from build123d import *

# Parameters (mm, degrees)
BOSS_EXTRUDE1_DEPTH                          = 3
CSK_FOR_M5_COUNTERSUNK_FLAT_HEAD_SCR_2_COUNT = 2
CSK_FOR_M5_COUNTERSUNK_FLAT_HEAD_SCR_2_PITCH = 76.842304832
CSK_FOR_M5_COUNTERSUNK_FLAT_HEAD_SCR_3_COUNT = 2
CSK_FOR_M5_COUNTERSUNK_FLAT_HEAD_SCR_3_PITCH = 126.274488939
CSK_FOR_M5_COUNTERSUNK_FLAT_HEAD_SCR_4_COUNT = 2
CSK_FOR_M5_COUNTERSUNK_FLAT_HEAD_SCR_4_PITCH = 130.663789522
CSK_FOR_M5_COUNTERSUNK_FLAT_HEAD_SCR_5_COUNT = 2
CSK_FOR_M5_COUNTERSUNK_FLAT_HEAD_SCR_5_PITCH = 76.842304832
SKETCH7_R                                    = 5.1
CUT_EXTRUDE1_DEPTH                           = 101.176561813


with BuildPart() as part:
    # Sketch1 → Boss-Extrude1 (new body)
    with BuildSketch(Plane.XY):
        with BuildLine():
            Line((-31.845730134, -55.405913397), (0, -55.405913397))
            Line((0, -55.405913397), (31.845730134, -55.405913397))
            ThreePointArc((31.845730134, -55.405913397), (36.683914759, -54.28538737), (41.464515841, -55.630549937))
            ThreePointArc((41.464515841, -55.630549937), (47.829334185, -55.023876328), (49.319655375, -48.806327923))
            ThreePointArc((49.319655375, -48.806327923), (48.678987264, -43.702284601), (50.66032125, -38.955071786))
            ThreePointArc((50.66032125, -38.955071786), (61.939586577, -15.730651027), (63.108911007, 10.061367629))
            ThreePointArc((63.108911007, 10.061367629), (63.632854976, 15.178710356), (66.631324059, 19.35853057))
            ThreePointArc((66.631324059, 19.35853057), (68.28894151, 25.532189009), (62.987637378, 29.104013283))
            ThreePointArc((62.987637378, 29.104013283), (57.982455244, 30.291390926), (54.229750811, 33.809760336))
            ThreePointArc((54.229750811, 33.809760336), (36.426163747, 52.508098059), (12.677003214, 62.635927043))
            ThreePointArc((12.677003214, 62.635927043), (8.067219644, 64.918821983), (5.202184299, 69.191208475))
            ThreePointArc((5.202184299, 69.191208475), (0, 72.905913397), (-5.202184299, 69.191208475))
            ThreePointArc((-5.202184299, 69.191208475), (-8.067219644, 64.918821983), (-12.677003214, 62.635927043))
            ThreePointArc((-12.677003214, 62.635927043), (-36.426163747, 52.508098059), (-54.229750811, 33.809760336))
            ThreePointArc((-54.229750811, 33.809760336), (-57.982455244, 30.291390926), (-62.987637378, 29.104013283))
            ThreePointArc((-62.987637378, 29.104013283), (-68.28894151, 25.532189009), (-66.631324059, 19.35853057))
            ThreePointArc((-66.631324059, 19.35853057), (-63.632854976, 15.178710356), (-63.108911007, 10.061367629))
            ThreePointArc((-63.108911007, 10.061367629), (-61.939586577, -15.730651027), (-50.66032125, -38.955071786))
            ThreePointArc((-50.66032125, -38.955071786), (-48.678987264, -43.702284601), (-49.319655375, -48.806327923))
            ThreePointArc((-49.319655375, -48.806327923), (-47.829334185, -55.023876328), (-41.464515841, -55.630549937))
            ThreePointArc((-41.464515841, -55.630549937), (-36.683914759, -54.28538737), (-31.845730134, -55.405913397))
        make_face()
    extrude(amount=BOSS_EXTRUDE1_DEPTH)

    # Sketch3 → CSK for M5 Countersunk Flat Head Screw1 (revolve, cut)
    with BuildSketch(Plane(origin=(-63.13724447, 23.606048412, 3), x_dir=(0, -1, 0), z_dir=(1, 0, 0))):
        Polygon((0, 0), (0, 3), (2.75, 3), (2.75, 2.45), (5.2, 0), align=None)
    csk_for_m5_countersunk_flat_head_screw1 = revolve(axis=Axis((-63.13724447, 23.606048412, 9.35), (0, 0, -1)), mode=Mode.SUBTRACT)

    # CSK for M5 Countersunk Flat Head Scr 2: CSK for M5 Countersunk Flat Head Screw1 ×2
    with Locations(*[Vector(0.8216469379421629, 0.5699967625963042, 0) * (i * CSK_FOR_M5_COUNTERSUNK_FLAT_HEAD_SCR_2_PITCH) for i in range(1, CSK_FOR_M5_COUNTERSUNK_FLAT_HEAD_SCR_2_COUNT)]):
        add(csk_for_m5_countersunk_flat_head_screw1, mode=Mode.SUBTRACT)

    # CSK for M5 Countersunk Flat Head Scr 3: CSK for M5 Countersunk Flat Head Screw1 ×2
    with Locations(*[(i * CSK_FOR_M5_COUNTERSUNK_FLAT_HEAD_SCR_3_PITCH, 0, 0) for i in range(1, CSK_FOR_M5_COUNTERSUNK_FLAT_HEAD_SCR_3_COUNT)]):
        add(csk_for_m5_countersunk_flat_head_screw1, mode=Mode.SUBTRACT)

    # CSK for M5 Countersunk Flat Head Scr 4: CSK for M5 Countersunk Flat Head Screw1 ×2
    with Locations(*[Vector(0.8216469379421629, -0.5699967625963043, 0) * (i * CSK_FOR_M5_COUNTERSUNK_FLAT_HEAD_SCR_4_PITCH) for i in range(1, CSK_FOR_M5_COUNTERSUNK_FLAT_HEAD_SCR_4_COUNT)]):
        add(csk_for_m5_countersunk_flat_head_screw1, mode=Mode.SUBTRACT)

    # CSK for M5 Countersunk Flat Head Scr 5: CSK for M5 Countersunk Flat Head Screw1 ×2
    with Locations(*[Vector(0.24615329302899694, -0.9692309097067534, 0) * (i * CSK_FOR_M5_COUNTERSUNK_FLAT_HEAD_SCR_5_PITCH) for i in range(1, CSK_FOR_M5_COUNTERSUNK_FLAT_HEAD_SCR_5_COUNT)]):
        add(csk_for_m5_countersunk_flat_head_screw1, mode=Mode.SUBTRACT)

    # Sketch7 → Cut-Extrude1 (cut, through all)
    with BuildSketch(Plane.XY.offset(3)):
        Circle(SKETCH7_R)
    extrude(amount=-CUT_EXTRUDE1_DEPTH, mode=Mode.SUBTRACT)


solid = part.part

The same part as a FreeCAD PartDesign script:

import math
import FreeCAD as App
import Part
import Sketcher
from FreeCAD import Vector
Q = App.Units.Quantity


def add_polygon(sketch, points):
    """Adds a closed chain of lines whose ends are joined by coincident constraints."""
    first, n = sketch.GeometryCount, len(points)
    for a, b in zip(points, points[1:] + points[:1]):
        sketch.addGeometry(Part.LineSegment(App.Vector(*a, 0), App.Vector(*b, 0)), False)
    for i in range(n):
        sketch.addConstraint(Sketcher.Constraint("Coincident", first + i, 2, first + (i + 1) % n, 1))

doc = App.newDocument("Part")
params = doc.addObject("Spreadsheet::Sheet", "Params")
for row, (alias, value) in enumerate([
    ("sketch1_radius", "10 mm"),
    ("sketch1_radius2", "5.5 mm"),
    ("pad1_length", "3 mm"),
    ("sketch2_height", "3 mm"),
    ("sketch2_width", "5.2 mm"),
    ("sketch2_width2", "2.75 mm"),
    ("groove_angle", "360 deg"),
    ("linearpattern_pitch", "76.842305 mm"),
    ("linearpattern2_pitch", "126.274489 mm"),
    ("linearpattern3_pitch", "130.66379 mm"),
    ("linearpattern4_pitch", "76.842305 mm"),
    ("sketch3_diameter", "10.2 mm"),
], start=1):
    params.set(f"A{row}", alias)
    params.set(f"B{row}", "=" + value)
    params.setAlias(f"B{row}", alias)

body = doc.addObject("PartDesign::Body", "Body")

# Sketch on XY plane
sketch1 = body.newObject("Sketcher::SketchObject", "Sketch")
sketch1.AttachmentSupport = (doc.getObject("XY_Plane"), [""])
sketch1.MapMode = "FlatFace"
sketch1.addGeometry([
    Part.LineSegment(Vector(-32, -55, 0), Vector(32, -55, 0)),  # 0
    Part.ArcOfCircle(Part.Circle(Vector(36, -64, 0), Vector(0, 0, 1), 10), math.radians(60), math.radians(117)),  # 1
    Part.ArcOfCircle(Part.Circle(Vector(44, -51, 0), Vector(0, 0, 1), 5), math.radians(-120), math.radians(22)),  # 2
    Part.ArcOfCircle(Part.Circle(Vector(59, -45, 0), Vector(0, 0, 1), 10), math.radians(142), math.radians(202)),  # 3
    Part.ArcOfCircle(Part.Circle(Vector(0, 0, 0), Vector(0, 0, 1), 64), math.radians(-38), math.radians(9)),  # 4
    Part.ArcOfCircle(Part.Circle(Vector(73, 12, 0), Vector(0, 0, 1), 10), math.radians(129), math.radians(189)),  # 5
    Part.ArcOfCircle(Part.Circle(Vector(63, 24, 0), Vector(0, 0, 1), 6), math.radians(-51), math.radians(92)),  # 6
    Part.ArcOfCircle(Part.Circle(Vector(63, 39, 0), Vector(0, 0, 1), 10), math.radians(-148), math.radians(-88)),  # 7
    Part.ArcOfCircle(Part.Circle(Vector(0, 0, 0), Vector(0, 0, 1), 64), math.radians(32), math.radians(79)),  # 8
    Part.ArcOfCircle(Part.Circle(Vector(15, 72, 0), Vector(0, 0, 1), 10), math.radians(-161), math.radians(-101)),  # 9
    Part.ArcOfCircle(Part.Circle(Vector(0, 67, 0), Vector(0, 0, 1), 6), math.radians(19), math.radians(161)),  # 10
    Part.ArcOfCircle(Part.Circle(Vector(-15, 72, 0), Vector(0, 0, 1), 10), math.radians(-79), math.radians(-19)),  # 11
    Part.ArcOfCircle(Part.Circle(Vector(0, 0, 0), Vector(0, 0, 1), 64), math.radians(101), math.radians(148)),  # 12
    Part.ArcOfCircle(Part.Circle(Vector(-63, 39, 0), Vector(0, 0, 1), 10), math.radians(-92), math.radians(-32)),  # 13
    Part.ArcOfCircle(Part.Circle(Vector(-63, 24, 0), Vector(0, 0, 1), 6), math.radians(88), math.radians(231)),  # 14
    Part.ArcOfCircle(Part.Circle(Vector(-73, 12, 0), Vector(0, 0, 1), 10), math.radians(-9), math.radians(51)),  # 15
    Part.ArcOfCircle(Part.Circle(Vector(0, 0, 0), Vector(0, 0, 1), 64), math.radians(171), math.radians(218)),  # 16
    Part.ArcOfCircle(Part.Circle(Vector(-59, -45, 0), Vector(0, 0, 1), 10), math.radians(-22), math.radians(38)),  # 17
    Part.ArcOfCircle(Part.Circle(Vector(-44, -51, 0), Vector(0, 0, 1), 5), math.radians(158), math.radians(300)),  # 18
    Part.ArcOfCircle(Part.Circle(Vector(-36, -64, 0), Vector(0, 0, 1), 10), math.radians(63), math.radians(120)),  # 19
], False)
sketch1.addConstraint([
    Sketcher.Constraint("Coincident", 0, 2, 1, 2),
    Sketcher.Constraint("Tangent", 1, 1, 2, 1),
    Sketcher.Constraint("Tangent", 2, 2, 3, 2),
    Sketcher.Constraint("Tangent", 3, 1, 4, 1),
    Sketcher.Constraint("Tangent", 4, 2, 5, 2),
    Sketcher.Constraint("Tangent", 5, 1, 6, 1),
    Sketcher.Constraint("Tangent", 6, 2, 7, 2),
    Sketcher.Constraint("Tangent", 7, 1, 8, 1),
    Sketcher.Constraint("Tangent", 8, 2, 9, 2),
    Sketcher.Constraint("Tangent", 9, 1, 10, 1),
    Sketcher.Constraint("Tangent", 10, 2, 11, 2),
    Sketcher.Constraint("Tangent", 11, 1, 12, 1),
    Sketcher.Constraint("Tangent", 12, 2, 13, 2),
    Sketcher.Constraint("Tangent", 13, 1, 14, 1),
    Sketcher.Constraint("Tangent", 14, 2, 15, 2),
    Sketcher.Constraint("Tangent", 15, 1, 16, 1),
    Sketcher.Constraint("Tangent", 16, 2, 17, 2),
    Sketcher.Constraint("Tangent", 17, 1, 18, 1),
    Sketcher.Constraint("Tangent", 18, 2, 19, 2),
    Sketcher.Constraint("Coincident", 19, 1, 0, 1),
    Sketcher.Constraint("Horizontal", 0),
    Sketcher.Constraint("Coincident", 4, 3, -1, 1),
    Sketcher.Constraint("Coincident", 8, 3, -1, 1),
    Sketcher.Constraint("Coincident", 12, 3, -1, 1),
    Sketcher.Constraint("Coincident", 16, 3, -1, 1),
    Sketcher.Constraint("Equal", 1, 3),
    Sketcher.Constraint("Equal", 3, 5),
    Sketcher.Constraint("Equal", 2, 6),
    Sketcher.Constraint("Equal", 5, 7),
    Sketcher.Constraint("Equal", 4, 8),
    Sketcher.Constraint("Equal", 7, 9),
    Sketcher.Constraint("Equal", 6, 10),
    Sketcher.Constraint("Equal", 9, 11),
    Sketcher.Constraint("Equal", 8, 12),
    Sketcher.Constraint("Equal", 11, 13),
    Sketcher.Constraint("Equal", 10, 14),
    Sketcher.Constraint("Equal", 13, 15),
    Sketcher.Constraint("Equal", 12, 16),
    Sketcher.Constraint("Equal", 15, 17),
    Sketcher.Constraint("Equal", 14, 18),
    Sketcher.Constraint("Equal", 17, 19),
    Sketcher.Constraint("Symmetric", 6, 3, 14, 3, -2),
    Sketcher.Constraint("Symmetric", 2, 3, 18, 3, -2),
    Sketcher.Constraint("PointOnObject", 10, 3, -2),
    Sketcher.Constraint("Horizontal", 1, 3, 19, 3),
    Sketcher.Constraint("Radius", 1, 10.0),
    Sketcher.Constraint("Radius", 2, 5.5),
    Sketcher.Constraint("Radius", 4, 63.905913),
    Sketcher.Constraint("DistanceX", 0, 1, 0, 2, 63.69146),
    Sketcher.Constraint("DistanceX", -1, 1, 9, 3, 14.660701),
    Sketcher.Constraint("DistanceY", 1, 3, 3, 3, 19.231898),
    Sketcher.Constraint("DistanceY", 2, 3, 7, 3, 89.972202),
    Sketcher.Constraint("DistanceY", 7, 3, 10, 3, 28.3056),
    Sketcher.Constraint("DistanceX", 7, 3, 5, 1, 3.9157),
    Sketcher.Constraint("DistanceX", -1, 1, 1, 3, 36.450439),
])
sketch1.setExpression("Constraints[45]", "Params.sketch1_radius")
sketch1.setExpression("Constraints[46]", "Params.sketch1_radius2")
pad1 = body.newObject("PartDesign::Pad", "Pad")
pad1.Profile = sketch1
pad1.setExpression("Length", "Params.pad1_length")

# Sketch on YZ plane
sketch2 = body.newObject("Sketcher::SketchObject", "Sketch001")
sketch2.AttachmentSupport = (doc.getObject("YZ_Plane"), [""])
sketch2.MapMode = "FlatFace"
sketch2.AttachmentOffset = App.Placement(Vector(0, 0, -63.137244), App.Rotation())
add_polygon(sketch2, [(23.6, 0), (23.6, 3), (18.4, 3), (20.9, 0.6), (20.9, 0)])  # lines 0-4
sketch2.addGeometry(Part.LineSegment(Vector(23.6, 3, 0), Vector(23.6, 0, 0)), True)  # axis
sketch2.addConstraint([
    Sketcher.Constraint("Vertical", 0),
    Sketcher.Constraint("Horizontal", 1),
    Sketcher.Constraint("Vertical", 3),
    Sketcher.Constraint("Horizontal", 4),
    Sketcher.Constraint("Vertical", 5),
    Sketcher.Constraint("Coincident", 5, 1, 0, 2),
    Sketcher.Constraint("PointOnObject", 3, 2, -1),
    Sketcher.Constraint("PointOnObject", 5, 2, -1),
    Sketcher.Constraint("DistanceY", 0, 1, 0, 2, 3.0),
    Sketcher.Constraint("Angle", 2, Q("-45 deg")),
    Sketcher.Constraint("DistanceX", 1, 2, 1, 1, 5.2),
    Sketcher.Constraint("DistanceX", 4, 1, 4, 2, 2.75),
    Sketcher.Constraint("DistanceX", -1, 1, 0, 2, 23.606048),
])
sketch2.setExpression("Constraints[13]", "Params.sketch2_height")
sketch2.setExpression("Constraints[15]", "Params.sketch2_width")
sketch2.setExpression("Constraints[16]", "Params.sketch2_width2")
groove = body.newObject("PartDesign::Groove", "Groove")
groove.Profile = sketch2
groove.ReferenceAxis = (sketch2, ["Axis0"])
groove.setExpression("Angle", "Params.groove_angle")
doc.recompute()

datumline = body.newObject("PartDesign::Line", "DatumLine")
datumline.Placement = App.Placement(Vector(0, 0, 0), App.Rotation(Vector(0, 0, 1), Vector(0.821646938, 0.569996763, 0)))
linearpattern = body.newObject("PartDesign::LinearPattern", "LinearPattern")
linearpattern.Originals = [groove]
linearpattern.Direction = (datumline, [""])
linearpattern.Mode = "offset"
linearpattern.setExpression("Offset", "Params.linearpattern_pitch")
linearpattern.Occurrences = 2
body.Tip = linearpattern
doc.recompute()

linearpattern2 = body.newObject("PartDesign::LinearPattern", "LinearPattern001")
linearpattern2.Originals = [groove]
linearpattern2.Direction = (doc.getObject("X_Axis"), [""])
linearpattern2.Mode = "offset"
linearpattern2.setExpression("Offset", "Params.linearpattern2_pitch")
linearpattern2.Occurrences = 2
body.Tip = linearpattern2
doc.recompute()

datumline2 = body.newObject("PartDesign::Line", "DatumLine001")
datumline2.Placement = App.Placement(Vector(0, 0, 0), App.Rotation(Vector(0, 0, 1), Vector(0.821646938, -0.569996763, 0)))
linearpattern3 = body.newObject("PartDesign::LinearPattern", "LinearPattern002")
linearpattern3.Originals = [groove]
linearpattern3.Direction = (datumline2, [""])
linearpattern3.Mode = "offset"
linearpattern3.setExpression("Offset", "Params.linearpattern3_pitch")
linearpattern3.Occurrences = 2
body.Tip = linearpattern3
doc.recompute()

datumline3 = body.newObject("PartDesign::Line", "DatumLine002")
datumline3.Placement = App.Placement(Vector(0, 0, 0), App.Rotation(Vector(0, 0, 1), Vector(0.246153293, -0.96923091, 0)))
linearpattern4 = body.newObject("PartDesign::LinearPattern", "LinearPattern003")
linearpattern4.Originals = [groove]
linearpattern4.Direction = (datumline3, [""])
linearpattern4.Mode = "offset"
linearpattern4.setExpression("Offset", "Params.linearpattern4_pitch")
linearpattern4.Occurrences = 2
body.Tip = linearpattern4

# Sketch on XY plane
sketch3 = body.newObject("Sketcher::SketchObject", "Sketch002")
sketch3.AttachmentSupport = (doc.getObject("XY_Plane"), [""])
sketch3.MapMode = "FlatFace"
sketch3.AttachmentOffset = App.Placement(Vector(0, 0, 3), App.Rotation())
sketch3.addGeometry(Part.Circle(Vector(0, 0, 0), Vector(0, 0, 1), 5), False)
sketch3.addConstraint([
    Sketcher.Constraint("Coincident", 0, 3, -1, 1),
    Sketcher.Constraint("Diameter", 0, 10.2),
])
sketch3.setExpression("Constraints[1]", "Params.sketch3_diameter")
pocket1 = body.newObject("PartDesign::Pocket", "Pocket")
pocket1.Profile = sketch3
pocket1.Type = "ThroughAll"

doc.recompute()
